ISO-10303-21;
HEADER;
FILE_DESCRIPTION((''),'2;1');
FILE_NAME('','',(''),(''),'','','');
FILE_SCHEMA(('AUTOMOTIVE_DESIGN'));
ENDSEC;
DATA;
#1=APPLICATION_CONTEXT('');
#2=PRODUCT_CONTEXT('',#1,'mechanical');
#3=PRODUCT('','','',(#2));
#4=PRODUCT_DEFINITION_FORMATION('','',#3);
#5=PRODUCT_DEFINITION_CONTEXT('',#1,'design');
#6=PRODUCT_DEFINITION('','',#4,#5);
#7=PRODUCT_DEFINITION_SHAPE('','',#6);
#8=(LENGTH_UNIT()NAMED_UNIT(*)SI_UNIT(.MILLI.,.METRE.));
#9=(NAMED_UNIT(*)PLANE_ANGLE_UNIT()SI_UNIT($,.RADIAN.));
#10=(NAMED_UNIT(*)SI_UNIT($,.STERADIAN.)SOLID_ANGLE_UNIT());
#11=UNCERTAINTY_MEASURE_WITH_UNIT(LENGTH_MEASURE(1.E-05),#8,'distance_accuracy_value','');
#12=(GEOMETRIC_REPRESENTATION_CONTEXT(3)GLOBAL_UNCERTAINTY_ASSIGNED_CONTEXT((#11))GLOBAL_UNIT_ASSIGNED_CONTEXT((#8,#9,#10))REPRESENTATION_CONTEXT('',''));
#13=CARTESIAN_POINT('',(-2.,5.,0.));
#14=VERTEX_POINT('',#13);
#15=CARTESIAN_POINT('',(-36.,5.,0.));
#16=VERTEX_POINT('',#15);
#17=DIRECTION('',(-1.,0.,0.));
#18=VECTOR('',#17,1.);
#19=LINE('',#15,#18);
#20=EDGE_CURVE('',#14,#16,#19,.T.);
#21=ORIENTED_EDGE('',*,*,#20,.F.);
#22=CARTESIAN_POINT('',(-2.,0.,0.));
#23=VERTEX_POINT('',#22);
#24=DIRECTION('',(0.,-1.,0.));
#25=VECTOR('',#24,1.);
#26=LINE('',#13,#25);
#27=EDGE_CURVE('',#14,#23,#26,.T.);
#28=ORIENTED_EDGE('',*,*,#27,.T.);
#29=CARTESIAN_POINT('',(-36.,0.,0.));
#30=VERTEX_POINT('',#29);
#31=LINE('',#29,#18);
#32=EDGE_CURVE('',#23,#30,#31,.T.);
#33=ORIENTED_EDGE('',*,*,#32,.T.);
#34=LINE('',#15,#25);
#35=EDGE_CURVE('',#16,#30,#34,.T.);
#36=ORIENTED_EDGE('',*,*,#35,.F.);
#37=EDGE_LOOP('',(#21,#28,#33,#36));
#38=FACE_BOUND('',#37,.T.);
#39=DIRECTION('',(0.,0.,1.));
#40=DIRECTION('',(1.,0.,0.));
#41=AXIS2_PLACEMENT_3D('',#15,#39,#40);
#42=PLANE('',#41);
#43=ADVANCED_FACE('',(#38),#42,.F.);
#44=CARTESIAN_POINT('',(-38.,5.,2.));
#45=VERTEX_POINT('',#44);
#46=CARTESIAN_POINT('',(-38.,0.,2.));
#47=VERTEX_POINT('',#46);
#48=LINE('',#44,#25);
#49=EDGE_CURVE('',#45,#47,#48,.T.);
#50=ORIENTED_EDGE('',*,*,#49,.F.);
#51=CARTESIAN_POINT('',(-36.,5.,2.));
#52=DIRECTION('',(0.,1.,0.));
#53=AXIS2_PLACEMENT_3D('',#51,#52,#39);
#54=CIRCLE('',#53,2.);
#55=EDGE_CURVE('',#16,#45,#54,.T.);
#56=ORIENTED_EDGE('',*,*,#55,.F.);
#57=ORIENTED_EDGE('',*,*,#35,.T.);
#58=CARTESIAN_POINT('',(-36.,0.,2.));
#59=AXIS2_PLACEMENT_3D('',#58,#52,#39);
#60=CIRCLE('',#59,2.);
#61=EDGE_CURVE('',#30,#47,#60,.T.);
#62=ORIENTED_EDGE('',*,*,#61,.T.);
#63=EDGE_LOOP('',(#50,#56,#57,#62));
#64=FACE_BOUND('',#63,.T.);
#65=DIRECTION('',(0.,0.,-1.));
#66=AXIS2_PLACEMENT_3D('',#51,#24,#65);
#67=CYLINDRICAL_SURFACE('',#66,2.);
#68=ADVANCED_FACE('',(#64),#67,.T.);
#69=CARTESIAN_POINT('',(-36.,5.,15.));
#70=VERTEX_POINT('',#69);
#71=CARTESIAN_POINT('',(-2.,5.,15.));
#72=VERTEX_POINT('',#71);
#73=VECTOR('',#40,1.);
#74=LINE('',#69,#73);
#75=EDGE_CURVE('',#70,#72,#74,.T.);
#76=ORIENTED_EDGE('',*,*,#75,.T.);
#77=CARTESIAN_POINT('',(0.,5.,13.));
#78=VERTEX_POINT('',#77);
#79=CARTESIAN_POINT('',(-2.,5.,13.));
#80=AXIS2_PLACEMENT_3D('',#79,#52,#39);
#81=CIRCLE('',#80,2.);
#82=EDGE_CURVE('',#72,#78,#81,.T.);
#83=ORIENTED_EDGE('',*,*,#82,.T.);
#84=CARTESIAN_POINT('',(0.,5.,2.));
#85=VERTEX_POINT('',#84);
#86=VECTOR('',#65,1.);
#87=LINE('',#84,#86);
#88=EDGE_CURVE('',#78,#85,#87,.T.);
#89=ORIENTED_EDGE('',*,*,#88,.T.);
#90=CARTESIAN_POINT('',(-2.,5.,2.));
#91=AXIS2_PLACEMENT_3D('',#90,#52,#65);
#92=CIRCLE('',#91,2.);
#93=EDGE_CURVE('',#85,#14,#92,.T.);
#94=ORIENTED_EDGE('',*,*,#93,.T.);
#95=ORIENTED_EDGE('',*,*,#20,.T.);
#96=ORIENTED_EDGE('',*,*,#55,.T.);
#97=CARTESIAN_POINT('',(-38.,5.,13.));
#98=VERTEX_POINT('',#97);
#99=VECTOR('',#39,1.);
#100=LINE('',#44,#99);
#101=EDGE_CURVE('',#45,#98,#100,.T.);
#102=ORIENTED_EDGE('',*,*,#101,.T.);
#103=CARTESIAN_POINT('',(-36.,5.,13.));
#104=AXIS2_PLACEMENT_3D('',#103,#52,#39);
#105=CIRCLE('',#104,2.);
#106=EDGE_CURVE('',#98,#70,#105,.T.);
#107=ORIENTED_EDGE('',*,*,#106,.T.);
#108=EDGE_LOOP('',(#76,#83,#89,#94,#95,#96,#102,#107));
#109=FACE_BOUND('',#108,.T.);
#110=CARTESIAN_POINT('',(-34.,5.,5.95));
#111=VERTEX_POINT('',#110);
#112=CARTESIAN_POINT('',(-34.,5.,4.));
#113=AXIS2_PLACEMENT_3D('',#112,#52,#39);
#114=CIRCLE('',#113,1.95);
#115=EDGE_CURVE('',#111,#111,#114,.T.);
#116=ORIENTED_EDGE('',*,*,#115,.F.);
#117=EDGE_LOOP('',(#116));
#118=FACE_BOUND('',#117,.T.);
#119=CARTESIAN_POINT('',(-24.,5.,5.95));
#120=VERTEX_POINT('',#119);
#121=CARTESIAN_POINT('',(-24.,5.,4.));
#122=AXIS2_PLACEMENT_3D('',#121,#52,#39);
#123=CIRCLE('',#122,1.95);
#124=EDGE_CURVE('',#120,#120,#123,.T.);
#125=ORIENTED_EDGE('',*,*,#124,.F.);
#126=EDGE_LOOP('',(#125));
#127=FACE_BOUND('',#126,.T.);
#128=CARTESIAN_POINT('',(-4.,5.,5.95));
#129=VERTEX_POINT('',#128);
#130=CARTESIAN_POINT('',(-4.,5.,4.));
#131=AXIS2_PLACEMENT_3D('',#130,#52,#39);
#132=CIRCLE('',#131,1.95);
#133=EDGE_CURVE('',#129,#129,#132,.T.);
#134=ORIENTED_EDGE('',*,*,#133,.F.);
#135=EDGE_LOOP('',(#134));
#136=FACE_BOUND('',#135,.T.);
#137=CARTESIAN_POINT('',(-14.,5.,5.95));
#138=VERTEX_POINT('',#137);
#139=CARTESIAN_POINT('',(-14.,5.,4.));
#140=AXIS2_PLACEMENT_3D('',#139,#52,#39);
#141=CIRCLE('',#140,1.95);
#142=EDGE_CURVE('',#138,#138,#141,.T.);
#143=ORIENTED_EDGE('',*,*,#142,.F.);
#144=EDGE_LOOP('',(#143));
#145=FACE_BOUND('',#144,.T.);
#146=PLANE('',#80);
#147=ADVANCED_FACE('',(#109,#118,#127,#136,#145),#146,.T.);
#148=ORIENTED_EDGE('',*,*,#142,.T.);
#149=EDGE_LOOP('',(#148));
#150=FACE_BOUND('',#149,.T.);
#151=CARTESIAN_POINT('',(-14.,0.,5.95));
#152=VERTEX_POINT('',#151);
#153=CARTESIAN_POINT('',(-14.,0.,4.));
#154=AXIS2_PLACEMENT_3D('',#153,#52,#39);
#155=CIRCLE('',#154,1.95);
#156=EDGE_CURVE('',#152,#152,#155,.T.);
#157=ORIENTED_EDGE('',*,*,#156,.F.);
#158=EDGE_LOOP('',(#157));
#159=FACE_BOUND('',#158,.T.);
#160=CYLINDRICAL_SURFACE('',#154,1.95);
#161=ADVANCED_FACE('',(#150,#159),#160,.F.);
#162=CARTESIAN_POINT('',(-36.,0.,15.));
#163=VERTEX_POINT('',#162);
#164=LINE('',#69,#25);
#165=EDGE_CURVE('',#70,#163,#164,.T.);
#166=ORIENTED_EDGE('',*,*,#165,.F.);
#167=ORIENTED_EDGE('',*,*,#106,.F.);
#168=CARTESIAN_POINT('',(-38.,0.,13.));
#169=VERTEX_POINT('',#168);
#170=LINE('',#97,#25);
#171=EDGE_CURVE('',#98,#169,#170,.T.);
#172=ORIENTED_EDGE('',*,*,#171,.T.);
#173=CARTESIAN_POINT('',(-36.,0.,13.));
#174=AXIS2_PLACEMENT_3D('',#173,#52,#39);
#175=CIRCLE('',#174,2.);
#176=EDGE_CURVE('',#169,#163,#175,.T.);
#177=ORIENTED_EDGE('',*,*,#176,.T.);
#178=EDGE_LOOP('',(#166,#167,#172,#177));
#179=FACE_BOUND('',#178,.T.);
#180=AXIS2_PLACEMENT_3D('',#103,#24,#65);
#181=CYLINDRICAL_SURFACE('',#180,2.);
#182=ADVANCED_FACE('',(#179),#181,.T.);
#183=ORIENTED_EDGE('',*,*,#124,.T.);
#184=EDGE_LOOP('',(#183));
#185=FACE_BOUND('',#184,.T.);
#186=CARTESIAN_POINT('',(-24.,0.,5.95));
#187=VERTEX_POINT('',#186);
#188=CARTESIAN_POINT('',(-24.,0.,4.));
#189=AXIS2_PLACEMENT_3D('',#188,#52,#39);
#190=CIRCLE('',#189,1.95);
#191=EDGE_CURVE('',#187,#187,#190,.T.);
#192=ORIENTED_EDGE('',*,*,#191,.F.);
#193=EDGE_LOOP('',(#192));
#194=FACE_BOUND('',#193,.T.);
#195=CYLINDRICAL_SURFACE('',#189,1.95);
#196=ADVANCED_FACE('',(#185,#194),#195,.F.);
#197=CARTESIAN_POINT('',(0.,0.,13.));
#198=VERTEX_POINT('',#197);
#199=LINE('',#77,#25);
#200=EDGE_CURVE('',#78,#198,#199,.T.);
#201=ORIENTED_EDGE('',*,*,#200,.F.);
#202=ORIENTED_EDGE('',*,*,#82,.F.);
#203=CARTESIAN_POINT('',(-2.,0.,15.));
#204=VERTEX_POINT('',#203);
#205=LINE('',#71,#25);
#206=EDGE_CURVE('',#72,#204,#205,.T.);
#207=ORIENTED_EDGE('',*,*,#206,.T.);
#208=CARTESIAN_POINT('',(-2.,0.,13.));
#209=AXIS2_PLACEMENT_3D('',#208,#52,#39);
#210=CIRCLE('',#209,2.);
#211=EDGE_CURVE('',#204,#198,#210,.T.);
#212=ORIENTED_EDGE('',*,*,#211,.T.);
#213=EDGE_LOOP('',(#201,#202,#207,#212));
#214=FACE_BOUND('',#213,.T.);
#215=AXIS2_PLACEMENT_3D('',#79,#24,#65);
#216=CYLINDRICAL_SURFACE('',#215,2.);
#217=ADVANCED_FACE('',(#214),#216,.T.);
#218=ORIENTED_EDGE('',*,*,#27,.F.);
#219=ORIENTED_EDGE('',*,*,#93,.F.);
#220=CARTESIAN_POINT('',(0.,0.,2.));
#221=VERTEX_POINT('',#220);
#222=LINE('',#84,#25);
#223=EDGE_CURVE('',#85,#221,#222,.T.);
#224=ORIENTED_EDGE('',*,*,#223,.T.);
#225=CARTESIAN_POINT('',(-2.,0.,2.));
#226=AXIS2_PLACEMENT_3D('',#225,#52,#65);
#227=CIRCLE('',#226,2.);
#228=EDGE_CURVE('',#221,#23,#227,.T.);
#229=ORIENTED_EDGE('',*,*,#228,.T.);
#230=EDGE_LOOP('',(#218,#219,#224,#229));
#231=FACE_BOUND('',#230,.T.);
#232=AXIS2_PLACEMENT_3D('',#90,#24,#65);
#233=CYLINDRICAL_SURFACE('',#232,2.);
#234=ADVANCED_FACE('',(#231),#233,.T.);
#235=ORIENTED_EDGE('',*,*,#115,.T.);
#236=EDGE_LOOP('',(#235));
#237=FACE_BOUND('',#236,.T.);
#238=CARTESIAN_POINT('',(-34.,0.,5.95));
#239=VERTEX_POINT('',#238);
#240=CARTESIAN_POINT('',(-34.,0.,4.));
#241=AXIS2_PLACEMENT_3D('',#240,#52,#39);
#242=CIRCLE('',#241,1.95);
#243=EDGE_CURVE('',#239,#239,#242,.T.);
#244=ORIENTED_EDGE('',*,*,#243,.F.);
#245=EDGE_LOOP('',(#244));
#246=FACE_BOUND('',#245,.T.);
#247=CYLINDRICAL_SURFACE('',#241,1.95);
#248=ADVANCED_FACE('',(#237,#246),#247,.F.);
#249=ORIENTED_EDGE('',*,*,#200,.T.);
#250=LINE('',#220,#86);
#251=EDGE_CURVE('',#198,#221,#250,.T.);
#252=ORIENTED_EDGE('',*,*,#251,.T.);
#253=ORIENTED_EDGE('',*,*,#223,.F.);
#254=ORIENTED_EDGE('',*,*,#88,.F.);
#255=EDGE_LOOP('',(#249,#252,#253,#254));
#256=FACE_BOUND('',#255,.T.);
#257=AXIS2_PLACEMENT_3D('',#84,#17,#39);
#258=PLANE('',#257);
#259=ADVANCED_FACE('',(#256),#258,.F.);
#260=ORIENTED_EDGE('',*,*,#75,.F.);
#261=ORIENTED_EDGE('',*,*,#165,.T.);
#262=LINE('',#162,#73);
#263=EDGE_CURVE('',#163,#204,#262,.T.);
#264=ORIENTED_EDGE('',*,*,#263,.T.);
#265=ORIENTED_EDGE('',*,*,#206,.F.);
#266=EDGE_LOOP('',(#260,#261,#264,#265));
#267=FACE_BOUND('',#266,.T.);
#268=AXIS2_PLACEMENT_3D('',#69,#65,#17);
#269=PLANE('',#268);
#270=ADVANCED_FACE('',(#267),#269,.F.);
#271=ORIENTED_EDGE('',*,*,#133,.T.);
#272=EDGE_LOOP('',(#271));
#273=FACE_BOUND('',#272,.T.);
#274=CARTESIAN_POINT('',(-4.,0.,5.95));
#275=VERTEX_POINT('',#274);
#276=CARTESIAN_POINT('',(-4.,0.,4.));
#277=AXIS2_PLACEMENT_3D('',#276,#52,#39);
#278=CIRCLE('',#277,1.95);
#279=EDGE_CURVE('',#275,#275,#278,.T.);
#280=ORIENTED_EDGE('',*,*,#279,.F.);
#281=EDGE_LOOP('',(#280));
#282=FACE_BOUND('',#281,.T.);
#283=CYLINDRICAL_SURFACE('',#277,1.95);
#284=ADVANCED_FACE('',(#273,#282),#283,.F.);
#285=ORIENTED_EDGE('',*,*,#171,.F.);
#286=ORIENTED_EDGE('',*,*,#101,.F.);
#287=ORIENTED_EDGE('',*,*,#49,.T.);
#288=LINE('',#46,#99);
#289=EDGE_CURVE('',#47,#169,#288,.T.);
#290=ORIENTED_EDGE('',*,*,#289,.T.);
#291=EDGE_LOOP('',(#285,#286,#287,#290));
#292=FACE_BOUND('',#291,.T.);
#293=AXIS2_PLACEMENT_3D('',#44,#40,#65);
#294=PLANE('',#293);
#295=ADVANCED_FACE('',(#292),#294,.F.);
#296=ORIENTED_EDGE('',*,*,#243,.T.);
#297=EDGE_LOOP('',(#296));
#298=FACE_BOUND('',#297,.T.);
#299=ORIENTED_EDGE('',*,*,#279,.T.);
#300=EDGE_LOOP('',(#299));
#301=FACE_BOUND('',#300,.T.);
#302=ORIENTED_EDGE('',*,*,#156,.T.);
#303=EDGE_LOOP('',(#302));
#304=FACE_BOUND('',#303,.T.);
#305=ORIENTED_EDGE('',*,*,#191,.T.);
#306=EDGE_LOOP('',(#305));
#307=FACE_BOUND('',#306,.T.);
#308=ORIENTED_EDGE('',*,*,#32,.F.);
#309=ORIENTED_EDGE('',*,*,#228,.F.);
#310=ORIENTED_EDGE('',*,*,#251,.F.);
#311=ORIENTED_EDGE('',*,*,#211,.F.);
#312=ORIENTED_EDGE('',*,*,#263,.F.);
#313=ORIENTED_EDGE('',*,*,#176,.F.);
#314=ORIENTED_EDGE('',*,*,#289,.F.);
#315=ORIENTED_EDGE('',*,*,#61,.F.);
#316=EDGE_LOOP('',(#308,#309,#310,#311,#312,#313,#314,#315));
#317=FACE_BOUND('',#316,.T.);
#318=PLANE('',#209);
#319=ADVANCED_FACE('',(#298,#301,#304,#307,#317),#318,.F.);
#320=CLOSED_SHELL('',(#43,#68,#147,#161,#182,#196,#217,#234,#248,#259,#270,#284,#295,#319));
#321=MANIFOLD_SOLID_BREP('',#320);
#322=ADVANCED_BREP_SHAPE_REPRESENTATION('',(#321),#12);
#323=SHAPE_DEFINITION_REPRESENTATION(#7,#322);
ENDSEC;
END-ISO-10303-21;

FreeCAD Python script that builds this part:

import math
import FreeCAD as App
import Part
import Sketcher
from FreeCAD import Vector
Q = App.Units.Quantity

doc = App.newDocument("Part")
params = doc.addObject("Spreadsheet::Sheet", "Params")
for row, (alias, value) in enumerate([
    ("sketch1_radius", "2 mm"),
    ("sketch1_width", "34 mm"),
    ("sketch1_height", "11 mm"),
    ("pad1_length", "5 mm"),
    ("sketch2_diameter", "3.9 mm"),
], start=1):
    params.set(f"A{row}", alias)
    params.set(f"B{row}", "=" + value)
    params.setAlias(f"B{row}", alias)

body = doc.addObject("PartDesign::Body", "Body")

# Sketch on XZ plane
sketch1 = body.newObject("Sketcher::SketchObject", "Sketch")
sketch1.AttachmentSupport = (doc.getObject("XZ_Plane"), [""])
sketch1.MapMode = "FlatFace"
sketch1.addGeometry([
    Part.LineSegment(Vector(-2, 0, 0), Vector(-36, 0, 0)),  # 0
    Part.ArcOfCircle(Part.Circle(Vector(-36, 2, 0), Vector(0, 0, 1), 2), math.radians(-180), math.radians(-90)),  # 1
    Part.LineSegment(Vector(-38, 2, 0), Vector(-38, 13, 0)),  # 2
    Part.ArcOfCircle(Part.Circle(Vector(-36, 13, 0), Vector(0, 0, 1), 2), math.radians(90), math.radians(180)),  # 3
    Part.LineSegment(Vector(-36, 15, 0), Vector(-2, 15, 0)),  # 4
    Part.ArcOfCircle(Part.Circle(Vector(-2, 13, 0), Vector(0, 0, 1), 2), math.radians(0), math.radians(90)),  # 5
    Part.LineSegment(Vector(0, 13, 0), Vector(0, 2, 0)),  # 6
    Part.ArcOfCircle(Part.Circle(Vector(-2, 2, 0), Vector(0, 0, 1), 2), math.radians(-90), math.radians(0)),  # 7
], False)
sketch1.addConstraint([
    Sketcher.Constraint("Tangent", 0, 2, 1, 2),
    Sketcher.Constraint("Tangent", 1, 1, 2, 1),
    Sketcher.Constraint("Tangent", 2, 2, 3, 2),
    Sketcher.Constraint("Tangent", 3, 1, 4, 1),
    Sketcher.Constraint("Tangent", 4, 2, 5, 2),
    Sketcher.Constraint("Tangent", 5, 1, 6, 1),
    Sketcher.Constraint("Tangent", 6, 2, 7, 2),
    Sketcher.Constraint("Tangent", 7, 1, 0, 1),
    Sketcher.Constraint("Horizontal", 0),
    Sketcher.Constraint("Vertical", 2),
    Sketcher.Constraint("Horizontal", 4),
    Sketcher.Constraint("Vertical", 6),
    Sketcher.Constraint("Equal", 1, 3),
    Sketcher.Constraint("Equal", 3, 5),
    Sketcher.Constraint("Equal", 5, 7),
    Sketcher.Constraint("PointOnObject", 0, 2, -1),
    Sketcher.Constraint("PointOnObject", 5, 1, -2),
    Sketcher.Constraint("Radius", 1, Q("2 mm")),
    Sketcher.Constraint("DistanceX", 0, 2, 0, 1, Q("34 mm")),
    Sketcher.Constraint("DistanceY", 2, 1, 2, 2, Q("11 mm")),
])
sketch1.setExpression("Constraints[17]", "Params.sketch1_radius")
sketch1.setExpression("Constraints[18]", "Params.sketch1_width")
sketch1.setExpression("Constraints[19]", "Params.sketch1_height")
pad1 = body.newObject("PartDesign::Pad", "Pad")
pad1.Profile = sketch1
pad1.setExpression("Length", "Params.pad1_length")
pad1.Reversed = True

# Sketch on XZ plane
sketch2 = body.newObject("Sketcher::SketchObject", "Sketch001")
sketch2.AttachmentSupport = (doc.getObject("XZ_Plane"), [""])
sketch2.MapMode = "FlatFace"
sketch2.AttachmentOffset = App.Placement(Vector(0, 0, -5), App.Rotation())
sketch2.addGeometry([
    Part.Circle(Vector(-4, 4, 0), Vector(0, 0, 1), 1.95),  # 0
    Part.Circle(Vector(-14, 4, 0), Vector(0, 0, 1), 1.95),  # 1
    Part.Circle(Vector(-24, 4, 0), Vector(0, 0, 1), 1.95),  # 2
    Part.Circle(Vector(-54, 4, 0), Vector(0, 0, 1), 1.95),  # 3
    Part.Circle(Vector(-34, 4, 0), Vector(0, 0, 1), 1.95),  # 4
    Part.Circle(Vector(-44, 4, 0), Vector(0, 0, 1), 1.95),  # 5
], False)
sketch2.addConstraint([
    Sketcher.Constraint("Equal", 0, 1),
    Sketcher.Constraint("Equal", 1, 2),
    Sketcher.Constraint("Equal", 2, 3),
    Sketcher.Constraint("Equal", 3, 4),
    Sketcher.Constraint("Equal", 4, 5),
    Sketcher.Constraint("Horizontal", 0, 3, 1, 3),
    Sketcher.Constraint("Horizontal", 1, 3, 2, 3),
    Sketcher.Constraint("Horizontal", 2, 3, 3, 3),
    Sketcher.Constraint("Horizontal", 3, 3, 4, 3),
    Sketcher.Constraint("Horizontal", 4, 3, 5, 3),
    Sketcher.Constraint("Diameter", 0, Q("3.9 mm")),
    Sketcher.Constraint("DistanceX", 0, 3, -1, 1, Q("4 mm")),
    Sketcher.Constraint("DistanceY", -1, 1, 0, 3, Q("4 mm")),
    Sketcher.Constraint("DistanceX", 1, 3, -1, 1, Q("14 mm")),
    Sketcher.Constraint("DistanceX", 2, 3, -1, 1, Q("24 mm")),
    Sketcher.Constraint("DistanceX", 3, 3, -1, 1, Q("54 mm")),
    Sketcher.Constraint("DistanceX", 4, 3, -1, 1, Q("34 mm")),
    Sketcher.Constraint("DistanceX", 5, 3, -1, 1, Q("44 mm")),
])
sketch2.setExpression("Constraints[10]", "Params.sketch2_diameter")
pocket1 = body.newObject("PartDesign::Pocket", "Pocket")
pocket1.Profile = sketch2
pocket1.Type = "ThroughAll"
pocket1.Reversed = True

doc.recompute()
